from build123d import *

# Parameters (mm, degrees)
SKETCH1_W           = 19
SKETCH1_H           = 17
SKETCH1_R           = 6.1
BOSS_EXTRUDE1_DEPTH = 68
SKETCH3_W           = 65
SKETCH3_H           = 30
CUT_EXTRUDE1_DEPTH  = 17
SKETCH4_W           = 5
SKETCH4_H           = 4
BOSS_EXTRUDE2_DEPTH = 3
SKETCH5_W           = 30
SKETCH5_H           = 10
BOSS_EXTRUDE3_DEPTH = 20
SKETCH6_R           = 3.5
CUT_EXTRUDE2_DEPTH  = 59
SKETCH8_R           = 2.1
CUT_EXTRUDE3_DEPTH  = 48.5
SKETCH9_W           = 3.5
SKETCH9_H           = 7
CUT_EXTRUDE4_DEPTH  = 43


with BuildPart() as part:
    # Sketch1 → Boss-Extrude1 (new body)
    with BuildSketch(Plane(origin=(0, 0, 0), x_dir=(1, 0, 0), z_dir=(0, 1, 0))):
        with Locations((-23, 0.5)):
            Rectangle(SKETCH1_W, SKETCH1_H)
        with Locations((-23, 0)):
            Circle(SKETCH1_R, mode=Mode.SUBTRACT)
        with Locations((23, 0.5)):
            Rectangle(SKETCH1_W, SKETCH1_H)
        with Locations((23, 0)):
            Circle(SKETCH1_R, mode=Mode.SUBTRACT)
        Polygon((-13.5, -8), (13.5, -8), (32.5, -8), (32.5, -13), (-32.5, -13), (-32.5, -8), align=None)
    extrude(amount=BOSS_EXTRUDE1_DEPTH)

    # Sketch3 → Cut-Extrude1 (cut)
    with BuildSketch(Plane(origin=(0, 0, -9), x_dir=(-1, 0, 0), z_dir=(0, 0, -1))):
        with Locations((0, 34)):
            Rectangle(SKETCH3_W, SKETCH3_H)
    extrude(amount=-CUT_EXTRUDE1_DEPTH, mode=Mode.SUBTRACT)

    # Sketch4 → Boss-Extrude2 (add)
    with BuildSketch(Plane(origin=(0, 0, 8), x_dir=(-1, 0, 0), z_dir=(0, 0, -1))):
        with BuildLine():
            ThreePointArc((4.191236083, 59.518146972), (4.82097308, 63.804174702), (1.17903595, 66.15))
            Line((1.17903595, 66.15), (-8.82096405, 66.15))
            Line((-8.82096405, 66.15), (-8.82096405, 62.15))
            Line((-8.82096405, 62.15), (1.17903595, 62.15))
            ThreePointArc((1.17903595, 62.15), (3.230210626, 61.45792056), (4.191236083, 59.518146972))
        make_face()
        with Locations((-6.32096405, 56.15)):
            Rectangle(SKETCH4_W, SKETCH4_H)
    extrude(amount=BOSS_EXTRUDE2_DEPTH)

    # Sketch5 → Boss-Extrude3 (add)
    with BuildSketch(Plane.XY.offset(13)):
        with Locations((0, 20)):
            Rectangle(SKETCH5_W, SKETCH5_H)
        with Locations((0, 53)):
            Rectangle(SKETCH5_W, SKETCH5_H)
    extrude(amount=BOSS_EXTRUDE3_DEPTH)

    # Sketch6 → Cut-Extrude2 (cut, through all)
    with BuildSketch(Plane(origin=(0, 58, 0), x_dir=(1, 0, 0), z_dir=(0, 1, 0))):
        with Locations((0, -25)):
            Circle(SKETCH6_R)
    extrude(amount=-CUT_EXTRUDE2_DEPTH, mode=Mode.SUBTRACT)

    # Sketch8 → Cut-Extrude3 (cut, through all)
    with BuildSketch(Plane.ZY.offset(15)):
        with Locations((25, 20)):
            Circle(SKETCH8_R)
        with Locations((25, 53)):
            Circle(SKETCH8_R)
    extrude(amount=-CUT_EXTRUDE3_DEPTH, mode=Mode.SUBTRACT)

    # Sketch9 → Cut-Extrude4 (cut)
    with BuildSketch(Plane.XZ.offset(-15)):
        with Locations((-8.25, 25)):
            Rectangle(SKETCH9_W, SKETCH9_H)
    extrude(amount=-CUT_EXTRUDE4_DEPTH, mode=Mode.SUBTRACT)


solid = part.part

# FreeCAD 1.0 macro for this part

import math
import FreeCAD as App
import Part
import Sketcher
from FreeCAD import Vector
Q = App.Units.Quantity

doc = App.newDocument("Part")
body = doc.addObject("PartDesign::Body", "Body")

# Sketch on XZ plane
sketch1 = body.newObject("Sketcher::SketchObject", "Sketch")
sketch1.AttachmentSupport = (doc.getObject("XZ_Plane"), [""])
sketch1.MapMode = "FlatFace"
sketch1.addGeometry([
    Part.LineSegment(Vector(-32, -9, 0), Vector(-32, 13, 0)),  # 0
    Part.LineSegment(Vector(-32, 13, 0), Vector(32, 13, 0)),  # 1
    Part.LineSegment(Vector(32, 13, 0), Vector(32, -9, 0)),  # 2
    Part.LineSegment(Vector(32, -9, 0), Vector(14, -9, 0)),  # 3
    Part.LineSegment(Vector(14, -9, 0), Vector(14, 8, 0)),  # 4
    Part.LineSegment(Vector(14, 8, 0), Vector(-14, 8, 0)),  # 5
    Part.LineSegment(Vector(-14, 8, 0), Vector(-14, -9, 0)),  # 6
    Part.LineSegment(Vector(-14, -9, 0), Vector(-32, -9, 0)),  # 7
    Part.Circle(Vector(-23, 0, 0), Vector(0, 0, 1), 6),  # 8
    Part.Circle(Vector(23, 0, 0), Vector(0, 0, 1), 6),  # 9
], False)
sketch1.addConstraint([
    Sketcher.Constraint("Coincident", 0, 2, 1, 1),
    Sketcher.Constraint("Coincident", 1, 2, 2, 1),
    Sketcher.Constraint("Coincident", 2, 2, 3, 1),
    Sketcher.Constraint("Coincident", 3, 2, 4, 1),
    Sketcher.Constraint("Coincident", 4, 2, 5, 1),
    Sketcher.Constraint("Coincident", 5, 2, 6, 1),
    Sketcher.Constraint("Coincident", 6, 2, 7, 1),
    Sketcher.Constraint("Coincident", 7, 2, 0, 1),
    Sketcher.Constraint("Vertical", 0),
    Sketcher.Constraint("Horizontal", 1),
    Sketcher.Constraint("Vertical", 2),
    Sketcher.Constraint("Horizontal", 3),
    Sketcher.Constraint("Vertical", 4),
    Sketcher.Constraint("Horizontal", 5),
    Sketcher.Constraint("Vertical", 6),
    Sketcher.Constraint("Horizontal", 7),
    Sketcher.Constraint("Equal", 8, 9),
    Sketcher.Constraint("Symmetric", 8, 3, 9, 3, -1, 1),
    Sketcher.Constraint("Symmetric", 3, 2, 6, 2, -2),
    Sketcher.Constraint("PointOnObject", 8, 3, -1),
    Sketcher.Constraint("Equal", 3, 7),
    Sketcher.Constraint("Diameter", 8, Q("12.2 mm")),
    Sketcher.Constraint("DistanceX", 1, 1, 1, 2, Q("65 mm")),
    Sketcher.Constraint("DistanceX", 3, 2, 3, 1, Q("19 mm")),
    Sketcher.Constraint("DistanceY", 0, 1, 0, 2, Q("22 mm")),
    Sketcher.Constraint("DistanceY", 4, 1, 4, 2, Q("17 mm")),
    Sketcher.Constraint("DistanceX", 8, 3, -1, 1, Q("23 mm")),
    Sketcher.Constraint("DistanceY", -1, 1, 0, 2, Q("13 mm")),
])
pad1 = body.newObject("PartDesign::Pad", "Pad")
pad1.Profile = sketch1
pad1.Length = 68
pad1.Reversed = True

# Sketch on XY plane
sketch2 = body.newObject("Sketcher::SketchObject", "Sketch001")
sketch2.AttachmentSupport = (doc.getObject("XY_Plane"), [""])
sketch2.MapMode = "FlatFace"
sketch2.AttachmentOffset = App.Placement(Vector(0, 0, -9), App.Rotation())
sketch2.addGeometry([
    Part.LineSegment(Vector(32, 49, 0), Vector(32, 19, 0)),
    Part.LineSegment(Vector(32, 19, 0), Vector(-32, 19, 0)),
    Part.LineSegment(Vector(-32, 19, 0), Vector(-32, 49, 0)),
    Part.LineSegment(Vector(-32, 49, 0), Vector(32, 49, 0)),
], False)
sketch2.addConstraint([
    Sketcher.Constraint("Coincident", 0, 2, 1, 1),
    Sketcher.Constraint("Coincident", 1, 2, 2, 1),
    Sketcher.Constraint("Coincident", 2, 2, 3, 1),
    Sketcher.Constraint("Coincident", 3, 2, 0, 1),
    Sketcher.Constraint("Vertical", 0),
    Sketcher.Constraint("Horizontal", 1),
    Sketcher.Constraint("Vertical", 2),
    Sketcher.Constraint("Horizontal", 3),
    Sketcher.Constraint("DistanceX", 1, 2, 1, 1, Q("65 mm")),
    Sketcher.Constraint("DistanceY", 0, 2, 0, 1, Q("30 mm")),
    Sketcher.Constraint("DistanceY", -1, 1, 0, 2, Q("19 mm")),
    Sketcher.Constraint("DistanceX", -1, 1, 0, 2, Q("32.5 mm")),
])
pocket1 = body.newObject("PartDesign::Pocket", "Pocket")
pocket1.Profile = sketch2
pocket1.Length = 17
pocket1.Reversed = True

# Sketch on XY plane
sketch3 = body.newObject("Sketcher::SketchObject", "Sketch002")
sketch3.AttachmentSupport = (doc.getObject("XY_Plane"), [""])
sketch3.MapMode = "FlatFace"
sketch3.AttachmentOffset = App.Placement(Vector(0, 0, 8), App.Rotation())
sketch3.addGeometry([
    Part.ArcOfCircle(Part.Circle(Vector(-1.2, 62.1, 0), Vector(0, 0, 1), 4), math.radians(90), math.radians(221)),  # 0
    Part.LineSegment(Vector(-1.2, 66.2, 0), Vector(8.8, 66.2, 0)),  # 1
    Part.LineSegment(Vector(8.8, 66.2, 0), Vector(8.8, 62.1, 0)),  # 2
    Part.LineSegment(Vector(8.8, 62.1, 0), Vector(-1.2, 62.1, 0)),  # 3
    Part.ArcOfCircle(Part.Circle(Vector(-1.4, 59.3, 0), Vector(0, 0, 1), 2.8), math.radians(86), math.radians(176)),  # 4
    Part.LineSegment(Vector(8.8, 58.1, 0), Vector(8.8, 54.1, 0)),  # 5
    Part.LineSegment(Vector(8.8, 54.1, 0), Vector(3.8, 54.1, 0)),  # 6
    Part.LineSegment(Vector(3.8, 54.1, 0), Vector(3.8, 58.1, 0)),  # 7
    Part.LineSegment(Vector(3.8, 58.1, 0), Vector(8.8, 58.1, 0)),  # 8
], False)
sketch3.addConstraint([
    Sketcher.Constraint("Tangent", 0, 1, 1, 1),
    Sketcher.Constraint("Coincident", 1, 2, 2, 1),
    Sketcher.Constraint("Coincident", 2, 2, 3, 1),
    Sketcher.Constraint("Coincident", 3, 2, 4, 1),
    Sketcher.Constraint("Coincident", 4, 2, 0, 2),
    Sketcher.Constraint("Coincident", 5, 2, 6, 1),
    Sketcher.Constraint("Coincident", 6, 2, 7, 1),
    Sketcher.Constraint("Coincident", 7, 2, 8, 1),
    Sketcher.Constraint("Coincident", 8, 2, 5, 1),
    Sketcher.Constraint("Horizontal", 1),
    Sketcher.Constraint("Vertical", 2),
    Sketcher.Constraint("Horizontal", 3),
    Sketcher.Constraint("Vertical", 5),
    Sketcher.Constraint("Horizontal", 6),
    Sketcher.Constraint("Vertical", 7),
    Sketcher.Constraint("Horizontal", 8),
    Sketcher.Constraint("Coincident", 3, 2, 0, 3),
    Sketcher.Constraint("Vertical", 2, 2, 5, 2),
    Sketcher.Constraint("Equal", 2, 5),
    Sketcher.Constraint("Radius", 0, Q("4 mm")),
    Sketcher.Constraint("DistanceX", 1, 1, 1, 2, Q("10 mm")),
    Sketcher.Constraint("DistanceX", 6, 2, 6, 1, Q("5 mm")),
    Sketcher.Constraint("DistanceY", 5, 2, 2, 2, Q("8 mm")),
    Sketcher.Constraint("DistanceY", -1, 1, 0, 3, Q("62.15 mm")),
    Sketcher.Constraint("Radius", 4, Q("2.828427 mm")),
    Sketcher.Constraint("DistanceX", 4, 2, 0, 3, Q("3.0122 mm")),
    Sketcher.Constraint("DistanceX", 4, 3, -1, 1, Q("1.36921 mm")),
])
pad2 = body.newObject("PartDesign::Pad", "Pad001")
pad2.Profile = sketch3
pad2.Length = 3
pad2.Reversed = True

# Sketch on XY plane
sketch4 = body.newObject("Sketcher::SketchObject", "Sketch003")
sketch4.AttachmentSupport = (doc.getObject("XY_Plane"), [""])
sketch4.MapMode = "FlatFace"
sketch4.AttachmentOffset = App.Placement(Vector(0, 0, 13), App.Rotation())
sketch4.addGeometry([
    Part.LineSegment(Vector(-15, 25, 0), Vector(-15, 15, 0)),  # 0
    Part.LineSegment(Vector(-15, 15, 0), Vector(15, 15, 0)),  # 1
    Part.LineSegment(Vector(15, 15, 0), Vector(15, 25, 0)),  # 2
    Part.LineSegment(Vector(15, 25, 0), Vector(-15, 25, 0)),  # 3
    Part.LineSegment(Vector(-15, 58, 0), Vector(-15, 48, 0)),  # 4
    Part.LineSegment(Vector(-15, 48, 0), Vector(15, 48, 0)),  # 5
    Part.LineSegment(Vector(15, 48, 0), Vector(15, 58, 0)),  # 6
    Part.LineSegment(Vector(15, 58, 0), Vector(-15, 58, 0)),  # 7
], False)
sketch4.addConstraint([
    Sketcher.Constraint("Coincident", 0, 2, 1, 1),
    Sketcher.Constraint("Coincident", 1, 2, 2, 1),
    Sketcher.Constraint("Coincident", 2, 2, 3, 1),
    Sketcher.Constraint("Coincident", 3, 2, 0, 1),
    Sketcher.Constraint("Coincident", 4, 2, 5, 1),
    Sketcher.Constraint("Coincident", 5, 2, 6, 1),
    Sketcher.Constraint("Coincident", 6, 2, 7, 1),
    Sketcher.Constraint("Coincident", 7, 2, 4, 1),
    Sketcher.Constraint("Vertical", 0),
    Sketcher.Constraint("Horizontal", 1),
    Sketcher.Constraint("Vertical", 2),
    Sketcher.Constraint("Horizontal", 3),
    Sketcher.Constraint("Vertical", 4),
    Sketcher.Constraint("Horizontal", 5),
    Sketcher.Constraint("Vertical", 6),
    Sketcher.Constraint("Horizontal", 7),
    Sketcher.Constraint("Vertical", 3, 2, 4, 2),
    Sketcher.Constraint("Vertical", 2, 2, 5, 2),
    Sketcher.Constraint("Equal", 2, 4),
    Sketcher.Constraint("DistanceX", 1, 1, 1, 2, Q("30 mm")),
    Sketcher.Constraint("DistanceY", 0, 2, 0, 1, Q("10 mm")),
    Sketcher.Constraint("DistanceX", 0, 2, -1, 1, Q("15 mm")),
    Sketcher.Constraint("DistanceY", -1, 1, 0, 2, Q("15 mm")),
    Sketcher.Constraint("DistanceY", -1, 1, 4, 2, Q("48 mm")),
])
pad3 = body.newObject("PartDesign::Pad", "Pad002")
pad3.Profile = sketch4
pad3.Length = 20

# Sketch on XZ plane
sketch5 = body.newObject("Sketcher::SketchObject", "Sketch004")
sketch5.AttachmentSupport = (doc.getObject("XZ_Plane"), [""])
sketch5.MapMode = "FlatFace"
sketch5.AttachmentOffset = App.Placement(Vector(0, 0, -58), App.Rotation())
sketch5.addGeometry(Part.Circle(Vector(0, 25, 0), Vector(0, 0, 1), 3.5), False)
sketch5.addConstraint([
    Sketcher.Constraint("PointOnObject", 0, 3, -2),
    Sketcher.Constraint("Diameter", 0, Q("7 mm")),
    Sketcher.Constraint("DistanceY", -1, 1, 0, 3, Q("25 mm")),
])
pocket2 = body.newObject("PartDesign::Pocket", "Pocket001")
pocket2.Profile = sketch5
pocket2.Type = "ThroughAll"
pocket2.Reversed = True

# Sketch on YZ plane
sketch6 = body.newObject("Sketcher::SketchObject", "Sketch005")
sketch6.AttachmentSupport = (doc.getObject("YZ_Plane"), [""])
sketch6.MapMode = "FlatFace"
sketch6.AttachmentOffset = App.Placement(Vector(0, 0, -15), App.Rotation())
sketch6.addGeometry([
    Part.Circle(Vector(20, 25, 0), Vector(0, 0, 1), 2.1),
    Part.Circle(Vector(53, 25, 0), Vector(0, 0, 1), 2.1),
], False)
sketch6.addConstraint([
    Sketcher.Constraint("Equal", 0, 1),
    Sketcher.Constraint("Horizontal", 0, 3, 1, 3),
    Sketcher.Constraint("Diameter", 0, Q("4.2 mm")),
    Sketcher.Constraint("DistanceX", -1, 1, 0, 3, Q("20 mm")),
    Sketcher.Constraint("DistanceY", -1, 1, 0, 3, Q("25 mm")),
    Sketcher.Constraint("DistanceX", -1, 1, 1, 3, Q("53 mm")),
])
pocket3 = body.newObject("PartDesign::Pocket", "Pocket002")
pocket3.Profile = sketch6
pocket3.Type = "ThroughAll"
pocket3.Reversed = True

# Sketch on XZ plane
sketch7 = body.newObject("Sketcher::SketchObject", "Sketch006")
sketch7.AttachmentSupport = (doc.getObject("XZ_Plane"), [""])
sketch7.MapMode = "FlatFace"
sketch7.AttachmentOffset = App.Placement(Vector(0, 0, -15), App.Rotation())
sketch7.addGeometry([
    Part.LineSegment(Vector(-10, 28.5, 0), Vector(-10, 21.5, 0)),
    Part.LineSegment(Vector(-10, 21.5, 0), Vector(-6.5, 21.5, 0)),
    Part.LineSegment(Vector(-6.5, 21.5, 0), Vector(-6.5, 28.5, 0)),
    Part.LineSegment(Vector(-6.5, 28.5, 0), Vector(-10, 28.5, 0)),
], False)
sketch7.addConstraint([
    Sketcher.Constraint("Coincident", 0, 2, 1, 1),
    Sketcher.Constraint("Coincident", 1, 2, 2, 1),
    Sketcher.Constraint("Coincident", 2, 2, 3, 1),
    Sketcher.Constraint("Coincident", 3, 2, 0, 1),
    Sketcher.Constraint("Vertical", 0),
    Sketcher.Constraint("Horizontal", 1),
    Sketcher.Constraint("Vertical", 2),
    Sketcher.Constraint("Horizontal", 3),
    Sketcher.Constraint("DistanceY", 0, 2, 0, 1, Q("7 mm")),
    Sketcher.Constraint("DistanceX", 1, 1, 1, 2, Q("3.5 mm")),
    Sketcher.Constraint("DistanceX", 0, 2, -1, 1, Q("10 mm")),
    Sketcher.Constraint("DistanceY", -1, 1, 0, 2, Q("21.5 mm")),
])
pocket4 = body.newObject("PartDesign::Pocket", "Pocket003")
pocket4.Profile = sketch7
pocket4.Length = 43

doc.recompute()
